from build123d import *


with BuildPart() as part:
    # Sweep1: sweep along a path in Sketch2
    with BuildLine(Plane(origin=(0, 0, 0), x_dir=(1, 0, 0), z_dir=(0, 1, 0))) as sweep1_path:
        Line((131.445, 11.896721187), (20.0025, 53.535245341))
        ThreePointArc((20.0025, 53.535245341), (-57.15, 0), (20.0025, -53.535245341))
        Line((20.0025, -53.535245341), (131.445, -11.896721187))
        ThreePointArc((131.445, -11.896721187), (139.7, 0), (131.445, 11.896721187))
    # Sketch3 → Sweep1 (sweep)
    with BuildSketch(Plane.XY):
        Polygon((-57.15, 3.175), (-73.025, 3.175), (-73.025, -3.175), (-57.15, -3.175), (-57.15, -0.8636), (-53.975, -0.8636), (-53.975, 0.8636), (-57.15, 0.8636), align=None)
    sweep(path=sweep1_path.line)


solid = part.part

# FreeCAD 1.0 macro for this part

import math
import FreeCAD as App
import Part
import Sketcher

V = App.Vector
Q = App.Units.Quantity

doc = App.newDocument("Part")
params = doc.addObject("Spreadsheet::Sheet", "Params")
for row, (alias, value) in enumerate([
    ("sketch1_height", "0.25 in"),
    ("sketch1_width", "0.625 in"),
    ("sketch1_width2", "0.125 in"),
    ("sketch1_height2", "0.091 in"),
    ("sketch2_radius", "0.5 in"),
    ("sketch2_radius2", "2.25 in"),
], start=1):
    params.set(f"A{row}", alias)
    params.set(f"B{row}", "=" + value)
    params.setAlias(f"B{row}", alias)

body = doc.addObject("PartDesign::Body", "Body")

# Sketch on XY plane
sketch1 = doc.addObject("Sketcher::SketchObject", "Sketch")
body.addObject(sketch1)
sketch1.AttachmentSupport = (doc.XY_Plane, [""])
sketch1.MapMode = "FlatFace"
sketch1.addGeometry([
    Part.LineSegment(V(-57.15, 3.175, 0), V(-73.025, 3.175, 0)),  # 0
    Part.LineSegment(V(-73.025, 3.175, 0), V(-73.025, -3.175, 0)),  # 1
    Part.LineSegment(V(-73.025, -3.175, 0), V(-57.15, -3.175, 0)),  # 2
    Part.LineSegment(V(-57.15, -3.175, 0), V(-57.15, -0.8636, 0)),  # 3
    Part.LineSegment(V(-57.15, -0.8636, 0), V(-53.975, -0.8636, 0)),  # 4
    Part.LineSegment(V(-53.975, -0.8636, 0), V(-53.975, 0.8636, 0)),  # 5
    Part.LineSegment(V(-53.975, 0.8636, 0), V(-57.15, 0.8636, 0)),  # 6
    Part.LineSegment(V(-57.15, 0.8636, 0), V(-57.15, 3.175, 0)),  # 7
], False)
sketch1.addConstraint([
    Sketcher.Constraint("Coincident", 0, 2, 1, 1),
    Sketcher.Constraint("Coincident", 1, 2, 2, 1),
    Sketcher.Constraint("Coincident", 2, 2, 3, 1),
    Sketcher.Constraint("Coincident", 3, 2, 4, 1),
    Sketcher.Constraint("Coincident", 4, 2, 5, 1),
    Sketcher.Constraint("Coincident", 5, 2, 6, 1),
    Sketcher.Constraint("Coincident", 6, 2, 7, 1),
    Sketcher.Constraint("Coincident", 7, 2, 0, 1),
    Sketcher.Constraint("Horizontal", 0),
    Sketcher.Constraint("Vertical", 1),
    Sketcher.Constraint("Horizontal", 2),
    Sketcher.Constraint("Vertical", 3),
    Sketcher.Constraint("Horizontal", 4),
    Sketcher.Constraint("Vertical", 5),
    Sketcher.Constraint("Horizontal", 6),
    Sketcher.Constraint("Vertical", 7),
    Sketcher.Constraint("Symmetric", 3, 2, 6, 2, -1),
    Sketcher.Constraint("Equal", 3, 7),
    Sketcher.Constraint("DistanceY", 1, 2, 1, 1, Q("0.25 in")),
    Sketcher.Constraint("DistanceX", 0, 2, 0, 1, Q("0.625 in")),
    Sketcher.Constraint("DistanceX", 4, 1, 4, 2, Q("0.125 in")),
    Sketcher.Constraint("DistanceY", 3, 1, 3, 2, Q("0.091 in")),
    Sketcher.Constraint("DistanceX", 2, 2, -1, 1, Q("2.25 in")),
])
sketch1.setExpression("Constraints[18]", "Params.sketch1_height")
sketch1.setExpression("Constraints[19]", "Params.sketch1_width")
sketch1.setExpression("Constraints[20]", "Params.sketch1_width2")
sketch1.setExpression("Constraints[21]", "Params.sketch1_height2")

# Sketch on XZ plane
sketch2 = doc.addObject("Sketcher::SketchObject", "Sketch001")
body.addObject(sketch2)
sketch2.AttachmentSupport = (doc.XZ_Plane, [""])
sketch2.MapMode = "FlatFace"
sketch2.addGeometry([
    Part.LineSegment(V(131.445, -11.896721, 0), V(20.0025, -53.535245, 0)),
    Part.ArcOfCircle(Part.Circle(V(0, 0, 0), V(0, 0, 1), 57.15), math.radians(69.512685), math.radians(290.487315)),
    Part.LineSegment(V(20.0025, 53.535245, 0), V(131.445, 11.896721, 0)),
    Part.ArcOfCircle(Part.Circle(V(127, 0, 0), V(0, 0, 1), 12.7), math.radians(-69.512685), math.radians(69.512685)),
], False)
sketch2.addConstraint([
    Sketcher.Constraint("Tangent", 0, 2, 1, 2),
    Sketcher.Constraint("Tangent", 1, 1, 2, 1),
    Sketcher.Constraint("Tangent", 2, 2, 3, 2),
    Sketcher.Constraint("Tangent", 3, 1, 0, 1),
    Sketcher.Constraint("Coincident", 1, 3, -1, 1),
    Sketcher.Constraint("PointOnObject", 3, 3, -1),
    Sketcher.Constraint("Radius", 3, Q("0.5 in")),
    Sketcher.Constraint("Radius", 1, Q("2.25 in")),
    Sketcher.Constraint("DistanceX", -1, 1, 3, 3, Q("5 in")),
])
sketch2.setExpression("Constraints[6]", "Params.sketch2_radius")
sketch2.setExpression("Constraints[7]", "Params.sketch2_radius2")
doc.recompute()

additivepipe = doc.addObject("PartDesign::AdditivePipe", "AdditivePipe")
body.addObject(additivepipe)
additivepipe.Profile = sketch1
additivepipe.Spine = (sketch2, ["Edge1", "Edge2", "Edge3", "Edge4"])

doc.recompute()
